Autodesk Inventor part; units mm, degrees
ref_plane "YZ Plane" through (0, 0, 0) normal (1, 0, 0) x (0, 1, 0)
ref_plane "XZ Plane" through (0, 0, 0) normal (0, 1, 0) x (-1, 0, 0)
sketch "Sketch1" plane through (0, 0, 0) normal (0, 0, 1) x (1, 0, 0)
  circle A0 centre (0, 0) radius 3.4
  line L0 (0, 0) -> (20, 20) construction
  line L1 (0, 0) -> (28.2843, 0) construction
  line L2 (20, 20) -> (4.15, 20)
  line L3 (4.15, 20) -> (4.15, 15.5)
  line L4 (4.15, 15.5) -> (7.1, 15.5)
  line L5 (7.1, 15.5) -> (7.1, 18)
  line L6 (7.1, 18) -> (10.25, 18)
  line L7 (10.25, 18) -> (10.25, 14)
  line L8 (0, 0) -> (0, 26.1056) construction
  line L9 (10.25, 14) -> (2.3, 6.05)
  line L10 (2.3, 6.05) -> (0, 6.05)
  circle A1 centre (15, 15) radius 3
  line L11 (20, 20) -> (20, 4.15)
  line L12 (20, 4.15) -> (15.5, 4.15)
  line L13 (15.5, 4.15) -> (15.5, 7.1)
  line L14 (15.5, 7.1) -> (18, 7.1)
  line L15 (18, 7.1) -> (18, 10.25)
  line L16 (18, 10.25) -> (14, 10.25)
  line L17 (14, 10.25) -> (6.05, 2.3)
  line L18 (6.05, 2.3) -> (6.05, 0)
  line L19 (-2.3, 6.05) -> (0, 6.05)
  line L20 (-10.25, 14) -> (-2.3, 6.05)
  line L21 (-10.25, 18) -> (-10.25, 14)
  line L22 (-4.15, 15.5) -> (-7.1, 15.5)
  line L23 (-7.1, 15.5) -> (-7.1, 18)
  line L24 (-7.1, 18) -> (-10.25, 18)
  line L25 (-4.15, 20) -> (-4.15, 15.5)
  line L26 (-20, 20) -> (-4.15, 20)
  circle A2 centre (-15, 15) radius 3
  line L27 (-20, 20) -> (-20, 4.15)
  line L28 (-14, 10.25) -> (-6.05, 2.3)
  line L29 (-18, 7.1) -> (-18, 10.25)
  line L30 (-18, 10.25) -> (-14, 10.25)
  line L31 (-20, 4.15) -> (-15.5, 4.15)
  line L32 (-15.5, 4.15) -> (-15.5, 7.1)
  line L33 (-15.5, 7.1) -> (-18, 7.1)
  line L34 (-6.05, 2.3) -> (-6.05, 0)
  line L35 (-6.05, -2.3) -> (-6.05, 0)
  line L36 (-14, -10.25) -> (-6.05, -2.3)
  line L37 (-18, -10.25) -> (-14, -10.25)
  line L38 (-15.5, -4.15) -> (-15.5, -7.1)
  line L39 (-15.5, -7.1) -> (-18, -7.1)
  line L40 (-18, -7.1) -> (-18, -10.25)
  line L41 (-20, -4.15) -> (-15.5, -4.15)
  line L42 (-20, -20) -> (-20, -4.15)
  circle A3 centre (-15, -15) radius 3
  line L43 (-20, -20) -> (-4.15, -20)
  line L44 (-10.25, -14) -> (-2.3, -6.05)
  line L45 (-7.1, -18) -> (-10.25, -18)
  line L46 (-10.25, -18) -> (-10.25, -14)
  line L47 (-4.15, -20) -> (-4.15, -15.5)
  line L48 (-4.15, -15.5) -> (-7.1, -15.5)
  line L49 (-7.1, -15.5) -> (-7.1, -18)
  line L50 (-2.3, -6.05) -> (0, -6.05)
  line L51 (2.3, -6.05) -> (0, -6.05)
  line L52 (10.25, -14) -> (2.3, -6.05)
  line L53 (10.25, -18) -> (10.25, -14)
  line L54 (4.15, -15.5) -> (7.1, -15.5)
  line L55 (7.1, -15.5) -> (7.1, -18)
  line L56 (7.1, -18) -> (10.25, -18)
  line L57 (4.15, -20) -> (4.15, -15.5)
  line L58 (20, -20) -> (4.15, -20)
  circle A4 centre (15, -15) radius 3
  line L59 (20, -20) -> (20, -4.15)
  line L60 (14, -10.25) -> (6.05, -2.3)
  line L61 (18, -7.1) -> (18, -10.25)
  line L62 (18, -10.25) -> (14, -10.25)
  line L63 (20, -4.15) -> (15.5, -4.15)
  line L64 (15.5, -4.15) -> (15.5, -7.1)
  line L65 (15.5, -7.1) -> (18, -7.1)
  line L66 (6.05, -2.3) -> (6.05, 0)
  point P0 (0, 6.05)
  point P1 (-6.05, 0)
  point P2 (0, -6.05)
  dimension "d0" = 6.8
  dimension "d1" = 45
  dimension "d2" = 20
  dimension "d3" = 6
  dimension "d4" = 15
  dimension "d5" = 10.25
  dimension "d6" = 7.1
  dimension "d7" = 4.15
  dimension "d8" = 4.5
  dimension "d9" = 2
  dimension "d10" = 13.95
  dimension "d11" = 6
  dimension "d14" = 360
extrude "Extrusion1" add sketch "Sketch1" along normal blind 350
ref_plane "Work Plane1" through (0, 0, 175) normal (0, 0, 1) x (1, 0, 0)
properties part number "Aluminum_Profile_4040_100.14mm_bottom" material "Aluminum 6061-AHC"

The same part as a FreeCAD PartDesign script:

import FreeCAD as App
import Part
import Sketcher

doc = App.newDocument("Part")
body = doc.addObject("PartDesign::Body", "Body")

# Sketch on XY plane
sketch1 = doc.addObject("Sketcher::SketchObject", "Sketch")
body.addObject(sketch1)
sketch1.AttachmentSupport = (doc.XY_Plane, [""])
sketch1.MapMode = "FlatFace"
sketch1.addGeometry(Part.LineSegment(App.Vector(20, 4.2, 0), App.Vector(20, 20, 0)), False)
sketch1.addGeometry(Part.LineSegment(App.Vector(20, 20, 0), App.Vector(4.2, 20, 0)), False)
sketch1.addGeometry(Part.LineSegment(App.Vector(4.2, 20, 0), App.Vector(4.2, 15.5, 0)), False)
sketch1.addGeometry(Part.LineSegment(App.Vector(4.2, 15.5, 0), App.Vector(7.1, 15.5, 0)), False)
sketch1.addGeometry(Part.LineSegment(App.Vector(7.1, 15.5, 0), App.Vector(7.1, 18, 0)), False)
sketch1.addGeometry(Part.LineSegment(App.Vector(7.1, 18, 0), App.Vector(10.2, 18, 0)), False)
sketch1.addGeometry(Part.LineSegment(App.Vector(10.2, 18, 0), App.Vector(10.2, 14, 0)), False)
sketch1.addGeometry(Part.LineSegment(App.Vector(10.2, 14, 0), App.Vector(2.3, 6, 0)), False)
sketch1.addGeometry(Part.LineSegment(App.Vector(2.3, 6, 0), App.Vector(-2.3, 6, 0)), False)
sketch1.addGeometry(Part.LineSegment(App.Vector(-2.3, 6, 0), App.Vector(-10.2, 14, 0)), False)
sketch1.addGeometry(Part.LineSegment(App.Vector(-10.2, 14, 0), App.Vector(-10.2, 18, 0)), False)
sketch1.addGeometry(Part.LineSegment(App.Vector(-10.2, 18, 0), App.Vector(-7.1, 18, 0)), False)
sketch1.addGeometry(Part.LineSegment(App.Vector(-7.1, 18, 0), App.Vector(-7.1, 15.5, 0)), False)
sketch1.addGeometry(Part.LineSegment(App.Vector(-7.1, 15.5, 0), App.Vector(-4.2, 15.5, 0)), False)
sketch1.addGeometry(Part.LineSegment(App.Vector(-4.2, 15.5, 0), App.Vector(-4.2, 20, 0)), False)
sketch1.addGeometry(Part.LineSegment(App.Vector(-4.2, 20, 0), App.Vector(-20, 20, 0)), False)
sketch1.addGeometry(Part.LineSegment(App.Vector(-20, 20, 0), App.Vector(-20, 4.2, 0)), False)
sketch1.addGeometry(Part.LineSegment(App.Vector(-20, 4.2, 0), App.Vector(-15.5, 4.2, 0)), False)
sketch1.addGeometry(Part.LineSegment(App.Vector(-15.5, 4.2, 0), App.Vector(-15.5, 7.1, 0)), False)
sketch1.addGeometry(Part.LineSegment(App.Vector(-15.5, 7.1, 0), App.Vector(-18, 7.1, 0)), False)
sketch1.addGeometry(Part.LineSegment(App.Vector(-18, 7.1, 0), App.Vector(-18, 10.2, 0)), False)
sketch1.addGeometry(Part.LineSegment(App.Vector(-18, 10.2, 0), App.Vector(-14, 10.2, 0)), False)
sketch1.addGeometry(Part.LineSegment(App.Vector(-14, 10.2, 0), App.Vector(-6, 2.3, 0)), False)
sketch1.addGeometry(Part.LineSegment(App.Vector(-6, 2.3, 0), App.Vector(-6, -2.3, 0)), False)
sketch1.addGeometry(Part.LineSegment(App.Vector(-6, -2.3, 0), App.Vector(-14, -10.2, 0)), False)
sketch1.addGeometry(Part.LineSegment(App.Vector(-14, -10.2, 0), App.Vector(-18, -10.2, 0)), False)
sketch1.addGeometry(Part.LineSegment(App.Vector(-18, -10.2, 0), App.Vector(-18, -7.1, 0)), False)
sketch1.addGeometry(Part.LineSegment(App.Vector(-18, -7.1, 0), App.Vector(-15.5, -7.1, 0)), False)
sketch1.addGeometry(Part.LineSegment(App.Vector(-15.5, -7.1, 0), App.Vector(-15.5, -4.2, 0)), False)
sketch1.addGeometry(Part.LineSegment(App.Vector(-15.5, -4.2, 0), App.Vector(-20, -4.2, 0)), False)
sketch1.addGeometry(Part.LineSegment(App.Vector(-20, -4.2, 0), App.Vector(-20, -20, 0)), False)
sketch1.addGeometry(Part.LineSegment(App.Vector(-20, -20, 0), App.Vector(-4.2, -20, 0)), False)
sketch1.addGeometry(Part.LineSegment(App.Vector(-4.2, -20, 0), App.Vector(-4.2, -15.5, 0)), False)
sketch1.addGeometry(Part.LineSegment(App.Vector(-4.2, -15.5, 0), App.Vector(-7.1, -15.5, 0)), False)
sketch1.addGeometry(Part.LineSegment(App.Vector(-7.1, -15.5, 0), App.Vector(-7.1, -18, 0)), False)
sketch1.addGeometry(Part.LineSegment(App.Vector(-7.1, -18, 0), App.Vector(-10.2, -18, 0)), False)
sketch1.addGeometry(Part.LineSegment(App.Vector(-10.2, -18, 0), App.Vector(-10.2, -14, 0)), False)
sketch1.addGeometry(Part.LineSegment(App.Vector(-10.2, -14, 0), App.Vector(-2.3, -6, 0)), False)
sketch1.addGeometry(Part.LineSegment(App.Vector(-2.3, -6, 0), App.Vector(2.3, -6, 0)), False)
sketch1.addGeometry(Part.LineSegment(App.Vector(2.3, -6, 0), App.Vector(10.2, -14, 0)), False)
sketch1.addGeometry(Part.LineSegment(App.Vector(10.2, -14, 0), App.Vector(10.2, -18, 0)), False)
sketch1.addGeometry(Part.LineSegment(App.Vector(10.2, -18, 0), App.Vector(7.1, -18, 0)), False)
sketch1.addGeometry(Part.LineSegment(App.Vector(7.1, -18, 0), App.Vector(7.1, -15.5, 0)), False)
sketch1.addGeometry(Part.LineSegment(App.Vector(7.1, -15.5, 0), App.Vector(4.2, -15.5, 0)), False)
sketch1.addGeometry(Part.LineSegment(App.Vector(4.2, -15.5, 0), App.Vector(4.2, -20, 0)), False)
sketch1.addGeometry(Part.LineSegment(App.Vector(4.2, -20, 0), App.Vector(20, -20, 0)), False)
sketch1.addGeometry(Part.LineSegment(App.Vector(20, -20, 0), App.Vector(20, -4.2, 0)), False)
sketch1.addGeometry(Part.LineSegment(App.Vector(20, -4.2, 0), App.Vector(15.5, -4.2, 0)), False)
sketch1.addGeometry(Part.LineSegment(App.Vector(15.5, -4.2, 0), App.Vector(15.5, -7.1, 0)), False)
sketch1.addGeometry(Part.LineSegment(App.Vector(15.5, -7.1, 0), App.Vector(18, -7.1, 0)), False)
sketch1.addGeometry(Part.LineSegment(App.Vector(18, -7.1, 0), App.Vector(18, -10.2, 0)), False)
sketch1.addGeometry(Part.LineSegment(App.Vector(18, -10.2, 0), App.Vector(14, -10.2, 0)), False)
sketch1.addGeometry(Part.LineSegment(App.Vector(14, -10.2, 0), App.Vector(6, -2.3, 0)), False)
sketch1.addGeometry(Part.LineSegment(App.Vector(6, -2.3, 0), App.Vector(6, 2.3, 0)), False)
sketch1.addGeometry(Part.LineSegment(App.Vector(6, 2.3, 0), App.Vector(14, 10.2, 0)), False)
sketch1.addGeometry(Part.LineSegment(App.Vector(14, 10.2, 0), App.Vector(18, 10.2, 0)), False)
sketch1.addGeometry(Part.LineSegment(App.Vector(18, 10.2, 0), App.Vector(18, 7.1, 0)), False)
sketch1.addGeometry(Part.LineSegment(App.Vector(18, 7.1, 0), App.Vector(15.5, 7.1, 0)), False)
sketch1.addGeometry(Part.LineSegment(App.Vector(15.5, 7.1, 0), App.Vector(15.5, 4.2, 0)), False)
sketch1.addGeometry(Part.LineSegment(App.Vector(15.5, 4.2, 0), App.Vector(20, 4.2, 0)), False)
sketch1.addGeometry(Part.Circle(App.Vector(-15, -15, 0), App.Vector(0, 0, 1), 3), False)
sketch1.addGeometry(Part.Circle(App.Vector(15, -15, 0), App.Vector(0, 0, 1), 3), False)
sketch1.addGeometry(Part.Circle(App.Vector(-15, 15, 0), App.Vector(0, 0, 1), 3), False)
sketch1.addGeometry(Part.Circle(App.Vector(0, 0, 0), App.Vector(0, 0, 1), 3.4), False)
sketch1.addGeometry(Part.Circle(App.Vector(15, 15, 0), App.Vector(0, 0, 1), 3), False)
sketch1.addConstraint(Sketcher.Constraint("Coincident", 0, 2, 1, 1))
sketch1.addConstraint(Sketcher.Constraint("Coincident", 1, 2, 2, 1))
sketch1.addConstraint(Sketcher.Constraint("Coincident", 2, 2, 3, 1))
sketch1.addConstraint(Sketcher.Constraint("Coincident", 3, 2, 4, 1))
sketch1.addConstraint(Sketcher.Constraint("Coincident", 4, 2, 5, 1))
sketch1.addConstraint(Sketcher.Constraint("Coincident", 5, 2, 6, 1))
sketch1.addConstraint(Sketcher.Constraint("Coincident", 6, 2, 7, 1))
sketch1.addConstraint(Sketcher.Constraint("Coincident", 7, 2, 8, 1))
sketch1.addConstraint(Sketcher.Constraint("Coincident", 8, 2, 9, 1))
sketch1.addConstraint(Sketcher.Constraint("Coincident", 9, 2, 10, 1))
sketch1.addConstraint(Sketcher.Constraint("Coincident", 10, 2, 11, 1))
sketch1.addConstraint(Sketcher.Constraint("Coincident", 11, 2, 12, 1))
sketch1.addConstraint(Sketcher.Constraint("Coincident", 12, 2, 13, 1))
sketch1.addConstraint(Sketcher.Constraint("Coincident", 13, 2, 14, 1))
sketch1.addConstraint(Sketcher.Constraint("Coincident", 14, 2, 15, 1))
sketch1.addConstraint(Sketcher.Constraint("Coincident", 15, 2, 16, 1))
sketch1.addConstraint(Sketcher.Constraint("Coincident", 16, 2, 17, 1))
sketch1.addConstraint(Sketcher.Constraint("Coincident", 17, 2, 18, 1))
sketch1.addConstraint(Sketcher.Constraint("Coincident", 18, 2, 19, 1))
sketch1.addConstraint(Sketcher.Constraint("Coincident", 19, 2, 20, 1))
sketch1.addConstraint(Sketcher.Constraint("Coincident", 20, 2, 21, 1))
sketch1.addConstraint(Sketcher.Constraint("Coincident", 21, 2, 22, 1))
sketch1.addConstraint(Sketcher.Constraint("Coincident", 22, 2, 23, 1))
sketch1.addConstraint(Sketcher.Constraint("Coincident", 23, 2, 24, 1))
sketch1.addConstraint(Sketcher.Constraint("Coincident", 24, 2, 25, 1))
sketch1.addConstraint(Sketcher.Constraint("Coincident", 25, 2, 26, 1))
sketch1.addConstraint(Sketcher.Constraint("Coincident", 26, 2, 27, 1))
sketch1.addConstraint(Sketcher.Constraint("Coincident", 27, 2, 28, 1))
sketch1.addConstraint(Sketcher.Constraint("Coincident", 28, 2, 29, 1))
sketch1.addConstraint(Sketcher.Constraint("Coincident", 29, 2, 30, 1))
sketch1.addConstraint(Sketcher.Constraint("Coincident", 30, 2, 31, 1))
sketch1.addConstraint(Sketcher.Constraint("Coincident", 31, 2, 32, 1))
sketch1.addConstraint(Sketcher.Constraint("Coincident", 32, 2, 33, 1))
sketch1.addConstraint(Sketcher.Constraint("Coincident", 33, 2, 34, 1))
sketch1.addConstraint(Sketcher.Constraint("Coincident", 34, 2, 35, 1))
sketch1.addConstraint(Sketcher.Constraint("Coincident", 35, 2, 36, 1))
sketch1.addConstraint(Sketcher.Constraint("Coincident", 36, 2, 37, 1))
sketch1.addConstraint(Sketcher.Constraint("Coincident", 37, 2, 38, 1))
sketch1.addConstraint(Sketcher.Constraint("Coincident", 38, 2, 39, 1))
sketch1.addConstraint(Sketcher.Constraint("Coincident", 39, 2, 40, 1))
sketch1.addConstraint(Sketcher.Constraint("Coincident", 40, 2, 41, 1))
sketch1.addConstraint(Sketcher.Constraint("Coincident", 41, 2, 42, 1))
sketch1.addConstraint(Sketcher.Constraint("Coincident", 42, 2, 43, 1))
sketch1.addConstraint(Sketcher.Constraint("Coincident", 43, 2, 44, 1))
sketch1.addConstraint(Sketcher.Constraint("Coincident", 44, 2, 45, 1))
sketch1.addConstraint(Sketcher.Constraint("Coincident", 45, 2, 46, 1))
sketch1.addConstraint(Sketcher.Constraint("Coincident", 46, 2, 47, 1))
sketch1.addConstraint(Sketcher.Constraint("Coincident", 47, 2, 48, 1))
sketch1.addConstraint(Sketcher.Constraint("Coincident", 48, 2, 49, 1))
sketch1.addConstraint(Sketcher.Constraint("Coincident", 49, 2, 50, 1))
sketch1.addConstraint(Sketcher.Constraint("Coincident", 50, 2, 51, 1))
sketch1.addConstraint(Sketcher.Constraint("Coincident", 51, 2, 52, 1))
sketch1.addConstraint(Sketcher.Constraint("Coincident", 52, 2, 53, 1))
sketch1.addConstraint(Sketcher.Constraint("Coincident", 53, 2, 54, 1))
sketch1.addConstraint(Sketcher.Constraint("Coincident", 54, 2, 55, 1))
sketch1.addConstraint(Sketcher.Constraint("Coincident", 55, 2, 56, 1))
sketch1.addConstraint(Sketcher.Constraint("Coincident", 56, 2, 57, 1))
sketch1.addConstraint(Sketcher.Constraint("Coincident", 57, 2, 58, 1))
sketch1.addConstraint(Sketcher.Constraint("Coincident", 58, 2, 59, 1))
sketch1.addConstraint(Sketcher.Constraint("Coincident", 59, 2, 0, 1))
sketch1.addConstraint(Sketcher.Constraint("Vertical", 0))
sketch1.addConstraint(Sketcher.Constraint("Horizontal", 1))
sketch1.addConstraint(Sketcher.Constraint("Vertical", 2))
sketch1.addConstraint(Sketcher.Constraint("Horizontal", 3))
sketch1.addConstraint(Sketcher.Constraint("Vertical", 4))
sketch1.addConstraint(Sketcher.Constraint("Horizontal", 5))
sketch1.addConstraint(Sketcher.Constraint("Vertical", 6))
sketch1.addConstraint(Sketcher.Constraint("Horizontal", 8))
sketch1.addConstraint(Sketcher.Constraint("Vertical", 10))
sketch1.addConstraint(Sketcher.Constraint("Horizontal", 11))
sketch1.addConstraint(Sketcher.Constraint("Vertical", 12))
sketch1.addConstraint(Sketcher.Constraint("Horizontal", 13))
sketch1.addConstraint(Sketcher.Constraint("Vertical", 14))
sketch1.addConstraint(Sketcher.Constraint("Horizontal", 15))
sketch1.addConstraint(Sketcher.Constraint("Vertical", 16))
sketch1.addConstraint(Sketcher.Constraint("Horizontal", 17))
sketch1.addConstraint(Sketcher.Constraint("Vertical", 18))
sketch1.addConstraint(Sketcher.Constraint("Horizontal", 19))
sketch1.addConstraint(Sketcher.Constraint("Vertical", 20))
sketch1.addConstraint(Sketcher.Constraint("Horizontal", 21))
sketch1.addConstraint(Sketcher.Constraint("Vertical", 23))
sketch1.addConstraint(Sketcher.Constraint("Horizontal", 25))
sketch1.addConstraint(Sketcher.Constraint("Vertical", 26))
sketch1.addConstraint(Sketcher.Constraint("Horizontal", 27))
sketch1.addConstraint(Sketcher.Constraint("Vertical", 28))
sketch1.addConstraint(Sketcher.Constraint("Horizontal", 29))
sketch1.addConstraint(Sketcher.Constraint("Vertical", 30))
sketch1.addConstraint(Sketcher.Constraint("Horizontal", 31))
sketch1.addConstraint(Sketcher.Constraint("Vertical", 32))
sketch1.addConstraint(Sketcher.Constraint("Horizontal", 33))
sketch1.addConstraint(Sketcher.Constraint("Vertical", 34))
sketch1.addConstraint(Sketcher.Constraint("Horizontal", 35))
sketch1.addConstraint(Sketcher.Constraint("Vertical", 36))
sketch1.addConstraint(Sketcher.Constraint("Horizontal", 38))
sketch1.addConstraint(Sketcher.Constraint("Vertical", 40))
sketch1.addConstraint(Sketcher.Constraint("Horizontal", 41))
sketch1.addConstraint(Sketcher.Constraint("Vertical", 42))
sketch1.addConstraint(Sketcher.Constraint("Horizontal", 43))
sketch1.addConstraint(Sketcher.Constraint("Vertical", 44))
sketch1.addConstraint(Sketcher.Constraint("Horizontal", 45))
sketch1.addConstraint(Sketcher.Constraint("Vertical", 46))
sketch1.addConstraint(Sketcher.Constraint("Horizontal", 47))
sketch1.addConstraint(Sketcher.Constraint("Vertical", 48))
sketch1.addConstraint(Sketcher.Constraint("Horizontal", 49))
sketch1.addConstraint(Sketcher.Constraint("Vertical", 50))
sketch1.addConstraint(Sketcher.Constraint("Horizontal", 51))
sketch1.addConstraint(Sketcher.Constraint("Vertical", 53))
sketch1.addConstraint(Sketcher.Constraint("Horizontal", 55))
sketch1.addConstraint(Sketcher.Constraint("Vertical", 56))
sketch1.addConstraint(Sketcher.Constraint("Horizontal", 57))
sketch1.addConstraint(Sketcher.Constraint("Vertical", 58))
sketch1.addConstraint(Sketcher.Constraint("Horizontal", 59))
sketch1.addConstraint(Sketcher.Constraint("Coincident", 63, 3, -1, 1))
sketch1.addConstraint(Sketcher.Constraint("Equal", 60, 61))
sketch1.addConstraint(Sketcher.Constraint("Equal", 61, 62))
sketch1.addConstraint(Sketcher.Constraint("Equal", 62, 64))
sketch1.addConstraint(Sketcher.Constraint("Symmetric", 61, 3, 62, 3, -1, 1))
sketch1.addConstraint(Sketcher.Constraint("Symmetric", 60, 3, 64, 3, -1, 1))
sketch1.addConstraint(Sketcher.Constraint("Symmetric", 0, 2, 30, 2, -1, 1))
sketch1.addConstraint(Sketcher.Constraint("Symmetric", 2, 2, 32, 2, -1, 1))
sketch1.addConstraint(Sketcher.Constraint("Symmetric", 4, 2, 34, 2, -1, 1))
sketch1.addConstraint(Sketcher.Constraint("Symmetric", 6, 2, 36, 2, -1, 1))
sketch1.addConstraint(Sketcher.Constraint("Symmetric", 7, 2, 37, 2, -1, 1))
sketch1.addConstraint(Sketcher.Constraint("Symmetric", 9, 2, 39, 2, -1, 1))
sketch1.addConstraint(Sketcher.Constraint("Symmetric", 11, 2, 41, 2, -1, 1))
sketch1.addConstraint(Sketcher.Constraint("Symmetric", 13, 2, 43, 2, -1, 1))
sketch1.addConstraint(Sketcher.Constraint("Symmetric", 15, 2, 45, 2, -1, 1))
sketch1.addConstraint(Sketcher.Constraint("Symmetric", 17, 2, 47, 2, -1, 1))
sketch1.addConstraint(Sketcher.Constraint("Symmetric", 19, 2, 49, 2, -1, 1))
sketch1.addConstraint(Sketcher.Constraint("Symmetric", 21, 2, 51, 2, -1, 1))
sketch1.addConstraint(Sketcher.Constraint("Symmetric", 22, 2, 52, 2, -1, 1))
sketch1.addConstraint(Sketcher.Constraint("Symmetric", 24, 2, 54, 2, -1, 1))
sketch1.addConstraint(Sketcher.Constraint("Symmetric", 26, 2, 56, 2, -1, 1))
sketch1.addConstraint(Sketcher.Constraint("Symmetric", 28, 2, 58, 2, -1, 1))
sketch1.addConstraint(Sketcher.Constraint("Symmetric", 60, 3, 61, 3, -2))
sketch1.addConstraint(Sketcher.Constraint("Symmetric", 6, 2, 9, 2, -2))
sketch1.addConstraint(Sketcher.Constraint("Symmetric", 4, 2, 11, 2, -2))
sketch1.addConstraint(Sketcher.Constraint("Symmetric", 2, 2, 13, 2, -2))
sketch1.addConstraint(Sketcher.Constraint("Symmetric", 0, 2, 15, 2, -2))
sketch1.addConstraint(Sketcher.Constraint("Symmetric", 28, 2, 47, 2, -2))
sketch1.addConstraint(Sketcher.Constraint("Symmetric", 26, 2, 49, 2, -2))
sketch1.addConstraint(Sketcher.Constraint("Symmetric", 24, 2, 51, 2, -2))
sketch1.addConstraint(Sketcher.Constraint("Perpendicular", 7, 9))
sketch1.addConstraint(Sketcher.Constraint("Parallel", 9, 22))
sketch1.addConstraint(Sketcher.Constraint("Perpendicular", 22, 24))
sketch1.addConstraint(Sketcher.Constraint("Perpendicular", 37, 39))
sketch1.addConstraint(Sketcher.Constraint("Perpendicular", 52, 54))
sketch1.addConstraint(Sketcher.Constraint("Horizontal", 23, 2, 52, 2))
sketch1.addConstraint(Sketcher.Constraint("Equal", 45, 0))
sketch1.addConstraint(Sketcher.Constraint("Equal", 59, 2))
sketch1.addConstraint(Sketcher.Constraint("Equal", 57, 4))
sketch1.addConstraint(Sketcher.Constraint("Equal", 55, 6))
sketch1.addConstraint(Sketcher.Constraint("Equal", 43, 18))
sketch1.addConstraint(Sketcher.Constraint("Equal", 41, 20))
sketch1.addConstraint(Sketcher.Constraint("Equal", 38, 23))
sketch1.addConstraint(Sketcher.Constraint("Equal", 9, 22))
sketch1.addConstraint(Sketcher.Constraint("Diameter", 60, 6.0))
sketch1.addConstraint(Sketcher.Constraint("Diameter", 63, 6.8))
sketch1.addConstraint(Sketcher.Constraint("DistanceX", 17, 1, 17, 2, 4.5))
sketch1.addConstraint(Sketcher.Constraint("DistanceX", 60, 3, -1, 1, 15.0))
sketch1.addConstraint(Sketcher.Constraint("DistanceY", 60, 3, -1, 1, 15.0))
sketch1.addConstraint(Sketcher.Constraint("DistanceX", -1, 1, 0, 2, 20.0))
sketch1.addConstraint(Sketcher.Constraint("DistanceX", -1, 1, 3, 2, 7.1))
sketch1.addConstraint(Sketcher.Constraint("DistanceX", 21, 1, 21, 2, 4.0))
sketch1.addConstraint(Sketcher.Constraint("DistanceX", -1, 1, 1, 2, 4.15))
sketch1.addConstraint(Sketcher.Constraint("DistanceX", -1, 1, 5, 2, 10.25))
sketch1.addConstraint(Sketcher.Constraint("DistanceX", 8, 2, 8, 1, 4.6))
sketch1.addConstraint(Sketcher.Constraint("DistanceX", 19, 2, 19, 1, 2.5))
pad1 = doc.addObject("PartDesign::Pad", "Pad")
body.addObject(pad1)
pad1.Profile = sketch1
pad1.Length = 350

doc.recompute()
